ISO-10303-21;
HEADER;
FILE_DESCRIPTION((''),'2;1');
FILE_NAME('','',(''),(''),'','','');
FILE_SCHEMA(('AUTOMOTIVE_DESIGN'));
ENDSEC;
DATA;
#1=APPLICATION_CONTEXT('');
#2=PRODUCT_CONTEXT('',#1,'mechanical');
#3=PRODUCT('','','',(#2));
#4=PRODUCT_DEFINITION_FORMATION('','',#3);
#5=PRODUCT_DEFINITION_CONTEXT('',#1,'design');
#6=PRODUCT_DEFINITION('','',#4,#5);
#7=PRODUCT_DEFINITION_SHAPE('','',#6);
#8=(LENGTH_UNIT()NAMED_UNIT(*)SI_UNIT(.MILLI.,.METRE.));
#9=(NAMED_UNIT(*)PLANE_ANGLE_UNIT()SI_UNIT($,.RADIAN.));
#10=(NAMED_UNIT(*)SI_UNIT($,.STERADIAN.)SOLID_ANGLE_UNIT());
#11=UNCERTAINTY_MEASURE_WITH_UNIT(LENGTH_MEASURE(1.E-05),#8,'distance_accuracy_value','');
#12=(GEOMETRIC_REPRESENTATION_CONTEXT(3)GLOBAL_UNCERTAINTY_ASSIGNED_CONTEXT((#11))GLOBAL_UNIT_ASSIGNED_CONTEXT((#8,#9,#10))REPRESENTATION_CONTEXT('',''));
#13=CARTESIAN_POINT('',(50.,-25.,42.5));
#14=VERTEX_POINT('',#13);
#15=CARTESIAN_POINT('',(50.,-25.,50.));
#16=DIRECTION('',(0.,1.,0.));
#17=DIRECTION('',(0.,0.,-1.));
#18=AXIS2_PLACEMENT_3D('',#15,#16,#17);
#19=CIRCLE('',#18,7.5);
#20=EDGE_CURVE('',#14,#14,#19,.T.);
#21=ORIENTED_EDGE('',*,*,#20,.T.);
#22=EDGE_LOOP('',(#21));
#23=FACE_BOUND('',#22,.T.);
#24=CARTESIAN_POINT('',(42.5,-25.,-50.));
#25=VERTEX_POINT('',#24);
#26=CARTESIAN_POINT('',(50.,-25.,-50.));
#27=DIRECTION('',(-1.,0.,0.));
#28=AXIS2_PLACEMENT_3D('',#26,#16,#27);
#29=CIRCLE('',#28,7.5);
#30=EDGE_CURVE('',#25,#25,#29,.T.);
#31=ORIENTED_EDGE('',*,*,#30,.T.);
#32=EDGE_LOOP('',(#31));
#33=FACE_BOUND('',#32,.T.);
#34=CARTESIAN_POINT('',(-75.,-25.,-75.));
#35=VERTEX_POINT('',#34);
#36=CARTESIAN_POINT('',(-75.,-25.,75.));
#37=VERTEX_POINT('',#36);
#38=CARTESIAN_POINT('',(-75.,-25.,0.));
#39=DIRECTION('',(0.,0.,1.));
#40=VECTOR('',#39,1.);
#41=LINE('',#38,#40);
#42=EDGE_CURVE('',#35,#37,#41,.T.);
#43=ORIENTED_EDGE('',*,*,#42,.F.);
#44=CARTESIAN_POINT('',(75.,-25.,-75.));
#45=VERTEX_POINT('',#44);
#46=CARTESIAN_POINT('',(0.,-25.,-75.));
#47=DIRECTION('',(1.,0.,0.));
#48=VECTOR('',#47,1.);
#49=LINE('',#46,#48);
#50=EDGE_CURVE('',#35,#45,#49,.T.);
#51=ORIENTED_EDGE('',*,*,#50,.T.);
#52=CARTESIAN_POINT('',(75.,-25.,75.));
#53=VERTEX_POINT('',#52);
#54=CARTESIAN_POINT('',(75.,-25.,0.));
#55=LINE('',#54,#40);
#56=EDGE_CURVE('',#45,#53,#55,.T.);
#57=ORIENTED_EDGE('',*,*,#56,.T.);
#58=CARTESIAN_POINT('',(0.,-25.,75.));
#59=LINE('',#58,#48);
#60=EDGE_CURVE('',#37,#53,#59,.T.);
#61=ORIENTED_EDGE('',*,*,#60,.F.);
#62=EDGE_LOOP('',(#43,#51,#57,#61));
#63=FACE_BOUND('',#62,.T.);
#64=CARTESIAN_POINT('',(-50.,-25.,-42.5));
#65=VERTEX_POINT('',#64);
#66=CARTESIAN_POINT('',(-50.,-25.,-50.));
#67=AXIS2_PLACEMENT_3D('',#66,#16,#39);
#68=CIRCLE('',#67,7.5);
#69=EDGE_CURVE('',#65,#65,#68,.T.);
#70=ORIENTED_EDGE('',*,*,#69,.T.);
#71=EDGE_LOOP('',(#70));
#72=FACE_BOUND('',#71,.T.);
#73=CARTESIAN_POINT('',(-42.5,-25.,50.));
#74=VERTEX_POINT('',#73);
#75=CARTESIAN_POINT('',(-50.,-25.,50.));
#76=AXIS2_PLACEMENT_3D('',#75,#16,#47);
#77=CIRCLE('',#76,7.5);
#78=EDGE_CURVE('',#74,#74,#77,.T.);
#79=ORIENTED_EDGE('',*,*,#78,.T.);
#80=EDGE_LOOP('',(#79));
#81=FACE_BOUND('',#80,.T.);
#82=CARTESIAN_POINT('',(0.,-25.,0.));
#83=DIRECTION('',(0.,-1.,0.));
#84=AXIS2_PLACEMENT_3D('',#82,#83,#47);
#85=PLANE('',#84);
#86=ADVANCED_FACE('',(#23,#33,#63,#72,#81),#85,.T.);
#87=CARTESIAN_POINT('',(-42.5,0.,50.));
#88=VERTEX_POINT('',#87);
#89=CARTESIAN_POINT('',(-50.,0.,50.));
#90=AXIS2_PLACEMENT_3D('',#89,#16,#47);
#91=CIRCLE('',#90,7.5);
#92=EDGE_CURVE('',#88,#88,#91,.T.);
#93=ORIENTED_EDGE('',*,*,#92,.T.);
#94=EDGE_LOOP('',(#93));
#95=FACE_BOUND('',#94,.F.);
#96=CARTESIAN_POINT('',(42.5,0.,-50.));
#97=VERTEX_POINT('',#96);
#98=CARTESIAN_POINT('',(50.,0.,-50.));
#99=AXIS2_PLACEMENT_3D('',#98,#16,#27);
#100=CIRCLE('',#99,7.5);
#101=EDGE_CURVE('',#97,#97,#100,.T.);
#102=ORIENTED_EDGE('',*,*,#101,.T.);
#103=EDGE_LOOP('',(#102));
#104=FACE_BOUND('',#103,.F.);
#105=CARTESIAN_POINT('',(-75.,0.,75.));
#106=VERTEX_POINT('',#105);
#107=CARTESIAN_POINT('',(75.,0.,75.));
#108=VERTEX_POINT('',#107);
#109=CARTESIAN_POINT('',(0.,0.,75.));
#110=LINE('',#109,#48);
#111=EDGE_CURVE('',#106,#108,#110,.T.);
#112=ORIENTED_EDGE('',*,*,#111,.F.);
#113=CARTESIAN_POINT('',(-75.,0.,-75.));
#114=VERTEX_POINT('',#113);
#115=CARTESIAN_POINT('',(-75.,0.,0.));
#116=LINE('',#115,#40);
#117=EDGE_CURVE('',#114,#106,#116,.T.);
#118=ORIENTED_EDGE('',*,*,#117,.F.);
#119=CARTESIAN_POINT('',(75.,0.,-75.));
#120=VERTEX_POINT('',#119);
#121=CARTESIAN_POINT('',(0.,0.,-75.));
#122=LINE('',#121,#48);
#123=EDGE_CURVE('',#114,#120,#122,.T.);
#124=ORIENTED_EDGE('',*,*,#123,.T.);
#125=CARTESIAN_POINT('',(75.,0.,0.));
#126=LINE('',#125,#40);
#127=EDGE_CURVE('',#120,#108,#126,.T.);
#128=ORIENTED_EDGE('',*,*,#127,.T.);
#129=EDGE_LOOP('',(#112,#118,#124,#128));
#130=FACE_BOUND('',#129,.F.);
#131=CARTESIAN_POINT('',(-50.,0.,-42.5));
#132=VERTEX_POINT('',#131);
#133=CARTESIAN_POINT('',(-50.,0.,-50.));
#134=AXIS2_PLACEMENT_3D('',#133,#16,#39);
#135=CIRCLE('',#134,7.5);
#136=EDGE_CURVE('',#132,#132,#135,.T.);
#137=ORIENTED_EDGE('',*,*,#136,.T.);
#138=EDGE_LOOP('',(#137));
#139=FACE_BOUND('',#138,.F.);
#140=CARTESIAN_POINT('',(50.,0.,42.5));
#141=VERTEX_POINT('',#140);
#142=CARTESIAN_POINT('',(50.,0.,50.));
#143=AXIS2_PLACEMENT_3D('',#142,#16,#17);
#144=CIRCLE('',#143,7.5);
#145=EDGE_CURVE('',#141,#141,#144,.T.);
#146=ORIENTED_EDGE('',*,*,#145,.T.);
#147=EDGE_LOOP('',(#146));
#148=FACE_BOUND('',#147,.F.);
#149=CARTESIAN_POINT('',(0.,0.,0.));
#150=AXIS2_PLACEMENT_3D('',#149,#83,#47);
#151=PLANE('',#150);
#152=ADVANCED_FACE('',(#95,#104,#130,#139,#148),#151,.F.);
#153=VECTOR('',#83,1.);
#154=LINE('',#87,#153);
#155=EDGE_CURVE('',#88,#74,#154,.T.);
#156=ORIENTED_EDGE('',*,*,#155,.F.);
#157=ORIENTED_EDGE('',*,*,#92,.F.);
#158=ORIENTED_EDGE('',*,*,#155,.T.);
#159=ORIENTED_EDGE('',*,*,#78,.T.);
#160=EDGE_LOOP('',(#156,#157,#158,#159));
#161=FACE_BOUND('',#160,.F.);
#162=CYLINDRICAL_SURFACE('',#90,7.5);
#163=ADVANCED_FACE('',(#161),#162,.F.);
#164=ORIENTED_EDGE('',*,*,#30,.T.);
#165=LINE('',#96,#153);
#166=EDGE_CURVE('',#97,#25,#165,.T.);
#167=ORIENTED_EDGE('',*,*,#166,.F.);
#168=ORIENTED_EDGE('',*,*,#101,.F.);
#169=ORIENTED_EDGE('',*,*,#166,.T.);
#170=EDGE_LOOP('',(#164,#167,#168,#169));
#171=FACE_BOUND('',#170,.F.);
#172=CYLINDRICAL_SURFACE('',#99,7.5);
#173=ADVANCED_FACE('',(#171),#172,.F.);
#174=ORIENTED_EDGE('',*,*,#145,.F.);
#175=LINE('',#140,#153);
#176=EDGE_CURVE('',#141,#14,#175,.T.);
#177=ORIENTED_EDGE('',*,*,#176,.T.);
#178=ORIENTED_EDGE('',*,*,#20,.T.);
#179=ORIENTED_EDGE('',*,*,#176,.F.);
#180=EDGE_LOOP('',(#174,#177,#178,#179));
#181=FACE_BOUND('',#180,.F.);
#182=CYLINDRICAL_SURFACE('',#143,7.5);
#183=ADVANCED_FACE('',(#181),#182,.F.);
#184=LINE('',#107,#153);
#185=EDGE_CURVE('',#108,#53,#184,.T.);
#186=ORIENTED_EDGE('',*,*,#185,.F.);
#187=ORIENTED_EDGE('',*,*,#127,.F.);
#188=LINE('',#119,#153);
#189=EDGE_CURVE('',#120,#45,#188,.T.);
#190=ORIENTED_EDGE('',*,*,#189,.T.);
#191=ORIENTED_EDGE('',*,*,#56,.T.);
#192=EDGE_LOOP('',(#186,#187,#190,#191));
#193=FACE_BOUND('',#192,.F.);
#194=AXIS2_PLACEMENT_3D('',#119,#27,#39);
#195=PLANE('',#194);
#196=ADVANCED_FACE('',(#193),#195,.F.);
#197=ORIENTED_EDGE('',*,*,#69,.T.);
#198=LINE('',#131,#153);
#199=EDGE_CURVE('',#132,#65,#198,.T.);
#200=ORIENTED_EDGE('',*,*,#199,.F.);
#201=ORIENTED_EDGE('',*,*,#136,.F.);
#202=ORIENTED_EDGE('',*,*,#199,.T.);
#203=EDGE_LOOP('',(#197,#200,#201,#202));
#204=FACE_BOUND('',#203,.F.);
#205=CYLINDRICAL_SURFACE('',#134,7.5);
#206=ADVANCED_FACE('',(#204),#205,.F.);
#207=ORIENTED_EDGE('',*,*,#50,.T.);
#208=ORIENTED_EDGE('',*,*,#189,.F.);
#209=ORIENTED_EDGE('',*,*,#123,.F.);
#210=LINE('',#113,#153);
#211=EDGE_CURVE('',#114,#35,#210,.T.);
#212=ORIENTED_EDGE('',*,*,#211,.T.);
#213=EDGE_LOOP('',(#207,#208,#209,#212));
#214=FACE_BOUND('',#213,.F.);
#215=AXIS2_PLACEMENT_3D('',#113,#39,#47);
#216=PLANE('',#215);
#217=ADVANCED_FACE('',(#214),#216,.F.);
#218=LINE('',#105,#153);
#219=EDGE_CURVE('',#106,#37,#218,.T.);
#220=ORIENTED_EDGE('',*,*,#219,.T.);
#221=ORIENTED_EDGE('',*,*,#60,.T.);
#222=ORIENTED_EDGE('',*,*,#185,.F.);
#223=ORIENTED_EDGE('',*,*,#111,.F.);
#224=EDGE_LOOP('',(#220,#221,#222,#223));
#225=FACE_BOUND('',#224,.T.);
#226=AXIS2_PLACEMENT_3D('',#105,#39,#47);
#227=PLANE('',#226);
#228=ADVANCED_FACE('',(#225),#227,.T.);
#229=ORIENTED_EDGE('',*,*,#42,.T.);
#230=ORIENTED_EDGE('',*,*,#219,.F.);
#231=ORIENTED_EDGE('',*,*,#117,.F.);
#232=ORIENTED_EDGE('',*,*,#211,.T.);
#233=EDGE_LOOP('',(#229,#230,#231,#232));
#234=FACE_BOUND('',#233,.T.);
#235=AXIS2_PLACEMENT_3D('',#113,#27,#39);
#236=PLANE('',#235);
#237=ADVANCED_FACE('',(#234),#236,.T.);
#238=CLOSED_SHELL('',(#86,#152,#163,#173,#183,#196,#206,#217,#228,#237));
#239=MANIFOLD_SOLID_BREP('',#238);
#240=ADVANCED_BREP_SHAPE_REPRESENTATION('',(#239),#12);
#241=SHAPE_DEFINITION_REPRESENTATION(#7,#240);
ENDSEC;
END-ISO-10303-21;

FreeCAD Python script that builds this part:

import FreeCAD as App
import Part
import Sketcher
from FreeCAD import Vector
Q = App.Units.Quantity

doc = App.newDocument("Part")
params = doc.addObject("Spreadsheet::Sheet", "Params")
for row, (alias, value) in enumerate([
    ("sketch1_diameter", "15 mm"),
    ("sketch1_width", "150 mm"),
    ("pad1_length", "25 mm"),
], start=1):
    params.set(f"A{row}", alias)
    params.set(f"B{row}", "=" + value)
    params.setAlias(f"B{row}", alias)

body = doc.addObject("PartDesign::Body", "Body")

# Sketch on XZ plane
sketch1 = doc.addObject("Sketcher::SketchObject", "Sketch")
body.addObject(sketch1)
sketch1.AttachmentSupport = (doc.XZ_Plane, [""])
sketch1.MapMode = "FlatFace"
sketch1.addGeometry([
    Part.LineSegment(Vector(-75, 75, 0), Vector(-75, -75, 0)),  # 0
    Part.LineSegment(Vector(-75, -75, 0), Vector(75, -75, 0)),  # 1
    Part.LineSegment(Vector(75, -75, 0), Vector(75, 75, 0)),  # 2
    Part.LineSegment(Vector(75, 75, 0), Vector(-75, 75, 0)),  # 3
    Part.Circle(Vector(-50, -50, 0), Vector(0, 0, 1), 7.5),  # 4
    Part.Circle(Vector(50, -50, 0), Vector(0, 0, 1), 7.5),  # 5
    Part.Circle(Vector(50, 50, 0), Vector(0, 0, 1), 7.5),  # 6
    Part.Circle(Vector(-50, 50, 0), Vector(0, 0, 1), 7.5),  # 7
], False)
sketch1.addConstraint([
    Sketcher.Constraint("Coincident", 0, 2, 1, 1),
    Sketcher.Constraint("Coincident", 1, 2, 2, 1),
    Sketcher.Constraint("Coincident", 2, 2, 3, 1),
    Sketcher.Constraint("Coincident", 3, 2, 0, 1),
    Sketcher.Constraint("Vertical", 0),
    Sketcher.Constraint("Horizontal", 1),
    Sketcher.Constraint("Vertical", 2),
    Sketcher.Constraint("Horizontal", 3),
    Sketcher.Constraint("Equal", 4, 5),
    Sketcher.Constraint("Equal", 5, 6),
    Sketcher.Constraint("Equal", 6, 7),
    Sketcher.Constraint("Symmetric", 4, 3, 6, 3, -1, 1),
    Sketcher.Constraint("Symmetric", 5, 3, 7, 3, -1, 1),
    Sketcher.Constraint("Symmetric", 0, 2, 2, 2, -1, 1),
    Sketcher.Constraint("Symmetric", 4, 3, 5, 3, -2),
    Sketcher.Constraint("Equal", 3, 0),
    Sketcher.Constraint("Diameter", 4, Q("15 mm")),
    Sketcher.Constraint("DistanceX", 1, 1, 1, 2, Q("150 mm")),
    Sketcher.Constraint("DistanceX", 4, 3, -1, 1, Q("50 mm")),
    Sketcher.Constraint("DistanceY", 4, 3, -1, 1, Q("50 mm")),
])
sketch1.setExpression("Constraints[16]", "Params.sketch1_diameter")
sketch1.setExpression("Constraints[17]", "Params.sketch1_width")
pad1 = doc.addObject("PartDesign::Pad", "Pad")
body.addObject(pad1)
pad1.Profile = sketch1
pad1.setExpression("Length", "Params.pad1_length")

doc.recompute()
